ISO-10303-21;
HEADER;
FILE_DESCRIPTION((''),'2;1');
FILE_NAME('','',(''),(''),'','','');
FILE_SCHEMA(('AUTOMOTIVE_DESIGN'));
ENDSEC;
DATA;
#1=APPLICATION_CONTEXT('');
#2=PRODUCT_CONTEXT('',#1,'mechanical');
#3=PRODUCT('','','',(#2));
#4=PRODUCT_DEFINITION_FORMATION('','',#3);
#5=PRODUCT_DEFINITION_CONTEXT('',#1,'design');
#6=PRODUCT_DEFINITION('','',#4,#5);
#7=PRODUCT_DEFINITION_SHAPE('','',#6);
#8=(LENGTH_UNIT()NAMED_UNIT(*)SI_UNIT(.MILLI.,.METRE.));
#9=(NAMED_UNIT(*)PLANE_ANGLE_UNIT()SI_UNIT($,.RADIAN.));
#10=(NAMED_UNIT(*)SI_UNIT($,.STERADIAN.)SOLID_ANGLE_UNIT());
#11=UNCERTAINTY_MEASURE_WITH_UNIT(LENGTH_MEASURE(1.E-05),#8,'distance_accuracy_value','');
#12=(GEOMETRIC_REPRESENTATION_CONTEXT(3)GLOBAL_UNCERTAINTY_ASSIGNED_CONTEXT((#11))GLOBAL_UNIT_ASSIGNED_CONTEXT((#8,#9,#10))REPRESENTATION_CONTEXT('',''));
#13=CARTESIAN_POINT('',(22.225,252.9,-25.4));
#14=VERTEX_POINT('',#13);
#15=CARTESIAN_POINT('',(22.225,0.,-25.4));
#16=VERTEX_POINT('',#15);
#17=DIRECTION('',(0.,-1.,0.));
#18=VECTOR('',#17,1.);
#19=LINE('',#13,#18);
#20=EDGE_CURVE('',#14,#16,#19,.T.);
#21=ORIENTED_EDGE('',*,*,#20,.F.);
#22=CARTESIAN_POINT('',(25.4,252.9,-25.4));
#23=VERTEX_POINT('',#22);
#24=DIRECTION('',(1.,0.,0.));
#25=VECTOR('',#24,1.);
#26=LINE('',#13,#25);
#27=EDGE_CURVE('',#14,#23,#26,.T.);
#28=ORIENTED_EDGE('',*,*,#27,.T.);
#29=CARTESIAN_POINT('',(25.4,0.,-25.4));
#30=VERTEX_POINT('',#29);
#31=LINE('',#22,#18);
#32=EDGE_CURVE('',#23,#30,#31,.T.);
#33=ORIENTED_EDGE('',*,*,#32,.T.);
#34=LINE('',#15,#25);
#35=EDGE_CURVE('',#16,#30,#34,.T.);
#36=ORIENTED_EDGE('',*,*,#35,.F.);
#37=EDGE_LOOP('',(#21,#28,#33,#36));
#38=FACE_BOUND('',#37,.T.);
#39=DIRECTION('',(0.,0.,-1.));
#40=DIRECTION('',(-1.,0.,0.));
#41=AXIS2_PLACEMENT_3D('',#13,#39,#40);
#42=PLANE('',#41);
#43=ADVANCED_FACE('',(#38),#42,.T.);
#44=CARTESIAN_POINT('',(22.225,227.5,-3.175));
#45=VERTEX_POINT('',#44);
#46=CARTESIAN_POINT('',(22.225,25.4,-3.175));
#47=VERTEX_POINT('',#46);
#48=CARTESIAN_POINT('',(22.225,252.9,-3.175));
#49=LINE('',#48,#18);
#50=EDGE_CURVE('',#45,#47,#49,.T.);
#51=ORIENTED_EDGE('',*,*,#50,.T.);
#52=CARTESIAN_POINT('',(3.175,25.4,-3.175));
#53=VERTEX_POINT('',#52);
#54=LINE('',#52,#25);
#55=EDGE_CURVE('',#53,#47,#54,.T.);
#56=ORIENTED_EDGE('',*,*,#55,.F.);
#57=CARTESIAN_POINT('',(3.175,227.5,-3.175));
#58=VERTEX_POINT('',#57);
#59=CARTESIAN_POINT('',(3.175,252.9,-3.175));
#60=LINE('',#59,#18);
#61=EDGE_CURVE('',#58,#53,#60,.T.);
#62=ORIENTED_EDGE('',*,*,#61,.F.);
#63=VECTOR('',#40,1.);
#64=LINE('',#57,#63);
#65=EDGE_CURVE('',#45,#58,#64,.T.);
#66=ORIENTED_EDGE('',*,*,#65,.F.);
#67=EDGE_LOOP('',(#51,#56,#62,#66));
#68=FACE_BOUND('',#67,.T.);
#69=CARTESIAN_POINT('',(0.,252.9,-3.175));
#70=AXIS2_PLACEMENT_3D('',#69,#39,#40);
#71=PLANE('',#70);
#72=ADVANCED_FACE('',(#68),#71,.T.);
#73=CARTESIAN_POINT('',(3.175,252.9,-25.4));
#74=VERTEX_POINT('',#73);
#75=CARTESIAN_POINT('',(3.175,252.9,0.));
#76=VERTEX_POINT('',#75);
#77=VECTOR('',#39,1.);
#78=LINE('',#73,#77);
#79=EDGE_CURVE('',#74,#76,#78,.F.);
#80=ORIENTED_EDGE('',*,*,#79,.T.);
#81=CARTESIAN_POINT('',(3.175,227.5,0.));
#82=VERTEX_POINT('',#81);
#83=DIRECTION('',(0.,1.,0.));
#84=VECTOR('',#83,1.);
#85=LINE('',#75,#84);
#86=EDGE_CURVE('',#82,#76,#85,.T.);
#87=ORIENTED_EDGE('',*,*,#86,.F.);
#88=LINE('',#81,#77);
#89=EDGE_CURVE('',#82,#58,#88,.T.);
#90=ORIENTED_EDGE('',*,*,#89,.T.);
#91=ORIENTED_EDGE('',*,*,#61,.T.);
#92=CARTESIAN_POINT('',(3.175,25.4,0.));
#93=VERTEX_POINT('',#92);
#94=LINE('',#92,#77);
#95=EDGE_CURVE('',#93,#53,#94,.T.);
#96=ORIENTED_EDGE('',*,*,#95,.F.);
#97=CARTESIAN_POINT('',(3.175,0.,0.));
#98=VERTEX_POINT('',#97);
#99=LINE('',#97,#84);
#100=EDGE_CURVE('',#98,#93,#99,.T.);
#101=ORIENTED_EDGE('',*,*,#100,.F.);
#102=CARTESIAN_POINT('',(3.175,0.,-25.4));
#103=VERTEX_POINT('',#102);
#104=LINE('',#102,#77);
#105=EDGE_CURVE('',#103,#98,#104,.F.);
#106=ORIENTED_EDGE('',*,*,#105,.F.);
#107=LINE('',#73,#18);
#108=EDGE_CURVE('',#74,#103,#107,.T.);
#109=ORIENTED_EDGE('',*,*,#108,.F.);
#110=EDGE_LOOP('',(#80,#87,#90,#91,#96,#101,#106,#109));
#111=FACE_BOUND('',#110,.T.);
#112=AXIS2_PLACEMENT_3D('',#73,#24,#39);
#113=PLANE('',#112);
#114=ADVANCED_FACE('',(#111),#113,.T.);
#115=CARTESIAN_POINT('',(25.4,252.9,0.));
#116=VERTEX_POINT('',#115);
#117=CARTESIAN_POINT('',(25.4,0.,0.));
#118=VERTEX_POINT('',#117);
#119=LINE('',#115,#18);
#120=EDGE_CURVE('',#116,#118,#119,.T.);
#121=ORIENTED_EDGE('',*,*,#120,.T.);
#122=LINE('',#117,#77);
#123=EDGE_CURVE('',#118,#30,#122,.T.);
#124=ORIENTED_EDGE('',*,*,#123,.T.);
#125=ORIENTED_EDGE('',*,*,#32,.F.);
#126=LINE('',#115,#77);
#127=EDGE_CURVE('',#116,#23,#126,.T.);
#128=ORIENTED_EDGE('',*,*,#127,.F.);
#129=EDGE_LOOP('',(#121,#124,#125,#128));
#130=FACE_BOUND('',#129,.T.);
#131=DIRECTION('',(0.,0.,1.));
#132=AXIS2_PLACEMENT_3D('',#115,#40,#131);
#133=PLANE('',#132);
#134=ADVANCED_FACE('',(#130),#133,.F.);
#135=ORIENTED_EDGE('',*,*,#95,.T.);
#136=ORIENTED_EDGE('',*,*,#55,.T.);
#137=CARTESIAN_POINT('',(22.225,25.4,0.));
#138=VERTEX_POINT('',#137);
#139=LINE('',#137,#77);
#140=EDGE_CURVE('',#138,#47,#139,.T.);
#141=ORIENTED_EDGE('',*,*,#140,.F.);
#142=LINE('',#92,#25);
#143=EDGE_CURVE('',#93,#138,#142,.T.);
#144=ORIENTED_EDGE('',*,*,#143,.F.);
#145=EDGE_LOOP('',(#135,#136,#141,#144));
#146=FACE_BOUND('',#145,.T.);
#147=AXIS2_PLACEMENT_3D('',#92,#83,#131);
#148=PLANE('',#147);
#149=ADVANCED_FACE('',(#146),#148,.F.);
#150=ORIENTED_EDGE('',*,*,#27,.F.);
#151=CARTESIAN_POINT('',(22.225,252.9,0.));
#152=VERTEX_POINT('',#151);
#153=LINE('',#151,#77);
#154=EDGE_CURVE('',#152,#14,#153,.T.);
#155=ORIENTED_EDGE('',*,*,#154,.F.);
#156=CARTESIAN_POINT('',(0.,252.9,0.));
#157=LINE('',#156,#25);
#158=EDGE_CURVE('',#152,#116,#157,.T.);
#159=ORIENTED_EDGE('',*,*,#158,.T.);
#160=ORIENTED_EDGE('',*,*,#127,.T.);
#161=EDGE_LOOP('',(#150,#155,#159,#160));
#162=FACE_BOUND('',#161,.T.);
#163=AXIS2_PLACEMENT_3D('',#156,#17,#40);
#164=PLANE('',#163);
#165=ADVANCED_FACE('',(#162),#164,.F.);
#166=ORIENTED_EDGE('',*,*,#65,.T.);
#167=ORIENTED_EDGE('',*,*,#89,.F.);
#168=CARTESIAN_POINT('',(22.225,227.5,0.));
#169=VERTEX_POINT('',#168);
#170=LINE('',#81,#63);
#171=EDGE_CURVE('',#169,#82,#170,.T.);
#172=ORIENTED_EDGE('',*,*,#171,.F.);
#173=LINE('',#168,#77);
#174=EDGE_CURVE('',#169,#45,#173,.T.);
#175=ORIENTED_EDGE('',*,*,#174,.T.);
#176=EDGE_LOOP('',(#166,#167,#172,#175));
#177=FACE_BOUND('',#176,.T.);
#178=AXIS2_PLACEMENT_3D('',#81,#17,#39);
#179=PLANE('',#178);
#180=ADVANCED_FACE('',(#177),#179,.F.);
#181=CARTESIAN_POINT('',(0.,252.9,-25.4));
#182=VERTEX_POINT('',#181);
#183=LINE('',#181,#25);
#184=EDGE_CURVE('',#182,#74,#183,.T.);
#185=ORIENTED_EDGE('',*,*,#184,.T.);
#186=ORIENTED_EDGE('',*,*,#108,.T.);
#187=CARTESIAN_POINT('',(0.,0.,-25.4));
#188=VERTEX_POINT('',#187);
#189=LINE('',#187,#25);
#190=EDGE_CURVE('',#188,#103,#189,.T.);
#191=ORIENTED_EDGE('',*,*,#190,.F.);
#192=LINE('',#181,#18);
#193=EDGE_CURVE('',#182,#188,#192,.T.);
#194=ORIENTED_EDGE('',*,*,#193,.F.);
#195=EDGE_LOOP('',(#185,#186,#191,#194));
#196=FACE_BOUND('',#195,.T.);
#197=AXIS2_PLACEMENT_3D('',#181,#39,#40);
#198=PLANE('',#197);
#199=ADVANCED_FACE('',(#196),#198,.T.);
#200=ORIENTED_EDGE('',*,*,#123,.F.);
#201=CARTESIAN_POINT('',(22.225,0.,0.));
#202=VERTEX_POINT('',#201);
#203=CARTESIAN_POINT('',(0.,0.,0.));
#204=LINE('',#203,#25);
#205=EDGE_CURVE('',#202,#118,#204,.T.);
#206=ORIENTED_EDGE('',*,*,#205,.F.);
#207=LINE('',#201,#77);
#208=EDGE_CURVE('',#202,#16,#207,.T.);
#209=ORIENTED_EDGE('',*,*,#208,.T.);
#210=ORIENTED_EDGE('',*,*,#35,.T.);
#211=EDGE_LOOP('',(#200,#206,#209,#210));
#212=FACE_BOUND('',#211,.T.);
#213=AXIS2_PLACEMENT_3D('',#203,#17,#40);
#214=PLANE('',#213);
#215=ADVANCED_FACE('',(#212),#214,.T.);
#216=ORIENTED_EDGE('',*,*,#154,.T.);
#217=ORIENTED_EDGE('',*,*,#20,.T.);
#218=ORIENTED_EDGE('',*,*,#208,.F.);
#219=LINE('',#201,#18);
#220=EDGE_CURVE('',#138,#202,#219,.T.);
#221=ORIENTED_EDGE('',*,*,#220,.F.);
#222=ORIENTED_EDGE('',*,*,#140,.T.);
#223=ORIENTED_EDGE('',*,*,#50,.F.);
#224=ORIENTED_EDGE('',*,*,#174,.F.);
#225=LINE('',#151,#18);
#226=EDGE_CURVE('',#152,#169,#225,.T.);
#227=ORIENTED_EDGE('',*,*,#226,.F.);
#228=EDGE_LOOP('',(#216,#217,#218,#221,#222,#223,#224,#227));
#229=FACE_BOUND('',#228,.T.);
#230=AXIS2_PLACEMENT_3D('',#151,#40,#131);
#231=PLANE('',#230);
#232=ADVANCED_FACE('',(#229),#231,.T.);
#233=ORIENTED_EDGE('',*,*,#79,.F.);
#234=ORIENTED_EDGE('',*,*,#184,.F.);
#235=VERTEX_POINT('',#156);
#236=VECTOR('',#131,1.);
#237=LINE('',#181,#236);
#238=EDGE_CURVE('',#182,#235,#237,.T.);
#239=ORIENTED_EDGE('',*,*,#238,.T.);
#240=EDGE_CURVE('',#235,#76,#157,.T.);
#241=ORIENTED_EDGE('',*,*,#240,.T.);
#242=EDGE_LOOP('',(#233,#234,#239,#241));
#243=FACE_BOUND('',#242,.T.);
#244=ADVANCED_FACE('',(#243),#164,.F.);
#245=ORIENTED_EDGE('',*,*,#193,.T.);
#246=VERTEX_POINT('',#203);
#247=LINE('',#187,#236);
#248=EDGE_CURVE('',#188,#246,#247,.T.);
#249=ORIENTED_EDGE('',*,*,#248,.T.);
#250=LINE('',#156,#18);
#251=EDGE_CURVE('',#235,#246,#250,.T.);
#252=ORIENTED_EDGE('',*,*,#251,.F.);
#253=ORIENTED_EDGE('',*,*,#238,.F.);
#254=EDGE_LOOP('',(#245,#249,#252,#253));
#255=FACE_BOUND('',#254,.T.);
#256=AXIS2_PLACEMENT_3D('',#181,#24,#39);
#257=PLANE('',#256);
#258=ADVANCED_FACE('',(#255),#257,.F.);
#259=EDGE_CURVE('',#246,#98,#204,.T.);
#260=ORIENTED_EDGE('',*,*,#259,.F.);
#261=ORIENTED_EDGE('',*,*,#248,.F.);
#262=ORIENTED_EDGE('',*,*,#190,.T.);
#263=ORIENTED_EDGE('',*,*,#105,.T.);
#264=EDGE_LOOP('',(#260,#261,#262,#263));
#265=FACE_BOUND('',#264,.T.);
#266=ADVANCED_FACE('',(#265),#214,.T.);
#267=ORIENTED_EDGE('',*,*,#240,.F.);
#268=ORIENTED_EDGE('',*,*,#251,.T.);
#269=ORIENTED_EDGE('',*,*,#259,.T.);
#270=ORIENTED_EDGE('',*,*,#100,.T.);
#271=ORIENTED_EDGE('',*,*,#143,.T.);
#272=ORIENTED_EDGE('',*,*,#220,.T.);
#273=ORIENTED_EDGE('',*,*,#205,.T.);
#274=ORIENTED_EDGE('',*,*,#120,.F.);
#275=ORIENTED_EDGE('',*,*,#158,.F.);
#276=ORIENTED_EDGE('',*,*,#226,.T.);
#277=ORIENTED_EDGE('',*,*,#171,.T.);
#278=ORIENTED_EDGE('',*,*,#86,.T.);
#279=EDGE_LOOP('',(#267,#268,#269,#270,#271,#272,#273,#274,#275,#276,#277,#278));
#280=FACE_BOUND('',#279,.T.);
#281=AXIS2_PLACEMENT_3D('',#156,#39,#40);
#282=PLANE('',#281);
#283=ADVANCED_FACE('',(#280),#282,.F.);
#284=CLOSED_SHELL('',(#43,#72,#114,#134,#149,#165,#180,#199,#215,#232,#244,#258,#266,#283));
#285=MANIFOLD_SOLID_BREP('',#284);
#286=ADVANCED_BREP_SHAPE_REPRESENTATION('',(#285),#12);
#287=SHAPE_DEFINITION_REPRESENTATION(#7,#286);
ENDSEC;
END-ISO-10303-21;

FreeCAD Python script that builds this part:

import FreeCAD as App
import Part
import Sketcher
Q = App.Units.Quantity

doc = App.newDocument("Part")
params = doc.addObject("Spreadsheet::Sheet", "Params")
for row, (alias, value) in enumerate([
    ("sketch1_width", "1 in"),
    ("sketch1_width2", "0.75 in"),
    ("sketch1_height", "0.875 in"),
    ("pad1_length", "252.9 mm"),
    ("sketch2_height", "1 in"),
    ("sketch2_width", "0.75 in"),
    ("pocket1_length", "0.125 in"),
], start=1):
    params.set(f"A{row}", alias)
    params.set(f"B{row}", "=" + value)
    params.setAlias(f"B{row}", alias)

body = doc.addObject("PartDesign::Body", "Body")

# Sketch on XZ plane
sketch1 = doc.addObject("Sketcher::SketchObject", "Sketch")
body.addObject(sketch1)
sketch1.AttachmentSupport = (doc.XZ_Plane, [""])
sketch1.MapMode = "FlatFace"
sketch1.addGeometry(Part.LineSegment(App.Vector(0, -25.4, 0), App.Vector(0, 0, 0)), False)
sketch1.addGeometry(Part.LineSegment(App.Vector(0, 0, 0), App.Vector(25.4, 0, 0)), False)
sketch1.addGeometry(Part.LineSegment(App.Vector(25.4, 0, 0), App.Vector(25.4, -25.4, 0)), False)
sketch1.addGeometry(Part.LineSegment(App.Vector(25.4, -25.4, 0), App.Vector(22.2, -25.4, 0)), False)
sketch1.addGeometry(Part.LineSegment(App.Vector(22.2, -25.4, 0), App.Vector(22.2, -3.2, 0)), False)
sketch1.addGeometry(Part.LineSegment(App.Vector(22.2, -3.2, 0), App.Vector(3.2, -3.2, 0)), False)
sketch1.addGeometry(Part.LineSegment(App.Vector(3.2, -3.2, 0), App.Vector(3.2, -25.4, 0)), False)
sketch1.addGeometry(Part.LineSegment(App.Vector(3.2, -25.4, 0), App.Vector(0, -25.4, 0)), False)
sketch1.addConstraint(Sketcher.Constraint("Coincident", 0, 2, 1, 1))
sketch1.addConstraint(Sketcher.Constraint("Coincident", 1, 2, 2, 1))
sketch1.addConstraint(Sketcher.Constraint("Coincident", 2, 2, 3, 1))
sketch1.addConstraint(Sketcher.Constraint("Coincident", 3, 2, 4, 1))
sketch1.addConstraint(Sketcher.Constraint("Coincident", 4, 2, 5, 1))
sketch1.addConstraint(Sketcher.Constraint("Coincident", 5, 2, 6, 1))
sketch1.addConstraint(Sketcher.Constraint("Coincident", 6, 2, 7, 1))
sketch1.addConstraint(Sketcher.Constraint("Coincident", 7, 2, 0, 1))
sketch1.addConstraint(Sketcher.Constraint("Vertical", 0))
sketch1.addConstraint(Sketcher.Constraint("Horizontal", 1))
sketch1.addConstraint(Sketcher.Constraint("Vertical", 2))
sketch1.addConstraint(Sketcher.Constraint("Horizontal", 3))
sketch1.addConstraint(Sketcher.Constraint("Vertical", 4))
sketch1.addConstraint(Sketcher.Constraint("Horizontal", 5))
sketch1.addConstraint(Sketcher.Constraint("Vertical", 6))
sketch1.addConstraint(Sketcher.Constraint("Horizontal", 7))
sketch1.addConstraint(Sketcher.Constraint("Coincident", 0, 2, -1, 1))
sketch1.addConstraint(Sketcher.Constraint("Horizontal", 3, 2, 6, 2))
sketch1.addConstraint(Sketcher.Constraint("Equal", 3, 7))
sketch1.addConstraint(Sketcher.Constraint("Equal", 1, 0))
sketch1.addConstraint(Sketcher.Constraint("DistanceX", 1, 1, 1, 2, Q("1 in")))
sketch1.addConstraint(Sketcher.Constraint("DistanceX", 5, 2, 5, 1, Q("0.75 in")))
sketch1.addConstraint(Sketcher.Constraint("DistanceY", 4, 1, 4, 2, Q("0.875 in")))
sketch1.setExpression("Constraints[20]", "Params.sketch1_width")
sketch1.setExpression("Constraints[21]", "Params.sketch1_width2")
sketch1.setExpression("Constraints[22]", "Params.sketch1_height")
pad1 = doc.addObject("PartDesign::Pad", "Pad")
body.addObject(pad1)
pad1.Profile = sketch1
pad1.setExpression("Length", "Params.pad1_length")
pad1.Reversed = True

# Sketch on XY plane
sketch2 = doc.addObject("Sketcher::SketchObject", "Sketch001")
body.addObject(sketch2)
sketch2.AttachmentSupport = (doc.XY_Plane, [""])
sketch2.MapMode = "FlatFace"
sketch2.AttachmentOffset = App.Placement(App.Vector(0, 0, -0.125 * 25.4), App.Rotation())
sketch2.addGeometry(Part.LineSegment(App.Vector(22, 25, 0), App.Vector(22, 0, 0)), False)
sketch2.addGeometry(Part.LineSegment(App.Vector(22, 0, 0), App.Vector(3, 0, 0)), False)
sketch2.addGeometry(Part.LineSegment(App.Vector(3, 0, 0), App.Vector(3, 25, 0)), False)
sketch2.addGeometry(Part.LineSegment(App.Vector(3, 25, 0), App.Vector(22, 25, 0)), False)
sketch2.addGeometry(Part.LineSegment(App.Vector(22, 253, 0), App.Vector(22, 228, 0)), False)
sketch2.addGeometry(Part.LineSegment(App.Vector(22, 228, 0), App.Vector(3, 228, 0)), False)
sketch2.addGeometry(Part.LineSegment(App.Vector(3, 228, 0), App.Vector(3, 253, 0)), False)
sketch2.addGeometry(Part.LineSegment(App.Vector(3, 253, 0), App.Vector(22, 253, 0)), False)
sketch2.addConstraint(Sketcher.Constraint("Coincident", 0, 2, 1, 1))
sketch2.addConstraint(Sketcher.Constraint("Coincident", 1, 2, 2, 1))
sketch2.addConstraint(Sketcher.Constraint("Coincident", 2, 2, 3, 1))
sketch2.addConstraint(Sketcher.Constraint("Coincident", 3, 2, 0, 1))
sketch2.addConstraint(Sketcher.Constraint("Coincident", 4, 2, 5, 1))
sketch2.addConstraint(Sketcher.Constraint("Coincident", 5, 2, 6, 1))
sketch2.addConstraint(Sketcher.Constraint("Coincident", 6, 2, 7, 1))
sketch2.addConstraint(Sketcher.Constraint("Coincident", 7, 2, 4, 1))
sketch2.addConstraint(Sketcher.Constraint("Vertical", 0))
sketch2.addConstraint(Sketcher.Constraint("Horizontal", 1))
sketch2.addConstraint(Sketcher.Constraint("Vertical", 2))
sketch2.addConstraint(Sketcher.Constraint("Horizontal", 3))
sketch2.addConstraint(Sketcher.Constraint("Vertical", 4))
sketch2.addConstraint(Sketcher.Constraint("Horizontal", 5))
sketch2.addConstraint(Sketcher.Constraint("Vertical", 6))
sketch2.addConstraint(Sketcher.Constraint("Horizontal", 7))
sketch2.addConstraint(Sketcher.Constraint("PointOnObject", 0, 2, -1))
sketch2.addConstraint(Sketcher.Constraint("Vertical", 3, 2, 4, 2))
sketch2.addConstraint(Sketcher.Constraint("Vertical", 2, 2, 5, 2))
sketch2.addConstraint(Sketcher.Constraint("Equal", 2, 4))
sketch2.addConstraint(Sketcher.Constraint("DistanceY", 0, 2, 0, 1, Q("1 in")))
sketch2.addConstraint(Sketcher.Constraint("DistanceX", 1, 2, 1, 1, Q("0.75 in")))
sketch2.addConstraint(Sketcher.Constraint("DistanceX", -1, 1, 0, 2, Q("0.875 in")))
sketch2.addConstraint(Sketcher.Constraint("DistanceY", -1, 1, 4, 2, Q("227.5 mm")))
sketch2.setExpression("Constraints[20]", "Params.sketch2_height")
sketch2.setExpression("Constraints[21]", "Params.sketch2_width")
pocket1 = doc.addObject("PartDesign::Pocket", "Pocket")
body.addObject(pocket1)
pocket1.Profile = sketch2
pocket1.setExpression("Length", "Params.pocket1_length")
pocket1.Reversed = True

doc.recompute()
